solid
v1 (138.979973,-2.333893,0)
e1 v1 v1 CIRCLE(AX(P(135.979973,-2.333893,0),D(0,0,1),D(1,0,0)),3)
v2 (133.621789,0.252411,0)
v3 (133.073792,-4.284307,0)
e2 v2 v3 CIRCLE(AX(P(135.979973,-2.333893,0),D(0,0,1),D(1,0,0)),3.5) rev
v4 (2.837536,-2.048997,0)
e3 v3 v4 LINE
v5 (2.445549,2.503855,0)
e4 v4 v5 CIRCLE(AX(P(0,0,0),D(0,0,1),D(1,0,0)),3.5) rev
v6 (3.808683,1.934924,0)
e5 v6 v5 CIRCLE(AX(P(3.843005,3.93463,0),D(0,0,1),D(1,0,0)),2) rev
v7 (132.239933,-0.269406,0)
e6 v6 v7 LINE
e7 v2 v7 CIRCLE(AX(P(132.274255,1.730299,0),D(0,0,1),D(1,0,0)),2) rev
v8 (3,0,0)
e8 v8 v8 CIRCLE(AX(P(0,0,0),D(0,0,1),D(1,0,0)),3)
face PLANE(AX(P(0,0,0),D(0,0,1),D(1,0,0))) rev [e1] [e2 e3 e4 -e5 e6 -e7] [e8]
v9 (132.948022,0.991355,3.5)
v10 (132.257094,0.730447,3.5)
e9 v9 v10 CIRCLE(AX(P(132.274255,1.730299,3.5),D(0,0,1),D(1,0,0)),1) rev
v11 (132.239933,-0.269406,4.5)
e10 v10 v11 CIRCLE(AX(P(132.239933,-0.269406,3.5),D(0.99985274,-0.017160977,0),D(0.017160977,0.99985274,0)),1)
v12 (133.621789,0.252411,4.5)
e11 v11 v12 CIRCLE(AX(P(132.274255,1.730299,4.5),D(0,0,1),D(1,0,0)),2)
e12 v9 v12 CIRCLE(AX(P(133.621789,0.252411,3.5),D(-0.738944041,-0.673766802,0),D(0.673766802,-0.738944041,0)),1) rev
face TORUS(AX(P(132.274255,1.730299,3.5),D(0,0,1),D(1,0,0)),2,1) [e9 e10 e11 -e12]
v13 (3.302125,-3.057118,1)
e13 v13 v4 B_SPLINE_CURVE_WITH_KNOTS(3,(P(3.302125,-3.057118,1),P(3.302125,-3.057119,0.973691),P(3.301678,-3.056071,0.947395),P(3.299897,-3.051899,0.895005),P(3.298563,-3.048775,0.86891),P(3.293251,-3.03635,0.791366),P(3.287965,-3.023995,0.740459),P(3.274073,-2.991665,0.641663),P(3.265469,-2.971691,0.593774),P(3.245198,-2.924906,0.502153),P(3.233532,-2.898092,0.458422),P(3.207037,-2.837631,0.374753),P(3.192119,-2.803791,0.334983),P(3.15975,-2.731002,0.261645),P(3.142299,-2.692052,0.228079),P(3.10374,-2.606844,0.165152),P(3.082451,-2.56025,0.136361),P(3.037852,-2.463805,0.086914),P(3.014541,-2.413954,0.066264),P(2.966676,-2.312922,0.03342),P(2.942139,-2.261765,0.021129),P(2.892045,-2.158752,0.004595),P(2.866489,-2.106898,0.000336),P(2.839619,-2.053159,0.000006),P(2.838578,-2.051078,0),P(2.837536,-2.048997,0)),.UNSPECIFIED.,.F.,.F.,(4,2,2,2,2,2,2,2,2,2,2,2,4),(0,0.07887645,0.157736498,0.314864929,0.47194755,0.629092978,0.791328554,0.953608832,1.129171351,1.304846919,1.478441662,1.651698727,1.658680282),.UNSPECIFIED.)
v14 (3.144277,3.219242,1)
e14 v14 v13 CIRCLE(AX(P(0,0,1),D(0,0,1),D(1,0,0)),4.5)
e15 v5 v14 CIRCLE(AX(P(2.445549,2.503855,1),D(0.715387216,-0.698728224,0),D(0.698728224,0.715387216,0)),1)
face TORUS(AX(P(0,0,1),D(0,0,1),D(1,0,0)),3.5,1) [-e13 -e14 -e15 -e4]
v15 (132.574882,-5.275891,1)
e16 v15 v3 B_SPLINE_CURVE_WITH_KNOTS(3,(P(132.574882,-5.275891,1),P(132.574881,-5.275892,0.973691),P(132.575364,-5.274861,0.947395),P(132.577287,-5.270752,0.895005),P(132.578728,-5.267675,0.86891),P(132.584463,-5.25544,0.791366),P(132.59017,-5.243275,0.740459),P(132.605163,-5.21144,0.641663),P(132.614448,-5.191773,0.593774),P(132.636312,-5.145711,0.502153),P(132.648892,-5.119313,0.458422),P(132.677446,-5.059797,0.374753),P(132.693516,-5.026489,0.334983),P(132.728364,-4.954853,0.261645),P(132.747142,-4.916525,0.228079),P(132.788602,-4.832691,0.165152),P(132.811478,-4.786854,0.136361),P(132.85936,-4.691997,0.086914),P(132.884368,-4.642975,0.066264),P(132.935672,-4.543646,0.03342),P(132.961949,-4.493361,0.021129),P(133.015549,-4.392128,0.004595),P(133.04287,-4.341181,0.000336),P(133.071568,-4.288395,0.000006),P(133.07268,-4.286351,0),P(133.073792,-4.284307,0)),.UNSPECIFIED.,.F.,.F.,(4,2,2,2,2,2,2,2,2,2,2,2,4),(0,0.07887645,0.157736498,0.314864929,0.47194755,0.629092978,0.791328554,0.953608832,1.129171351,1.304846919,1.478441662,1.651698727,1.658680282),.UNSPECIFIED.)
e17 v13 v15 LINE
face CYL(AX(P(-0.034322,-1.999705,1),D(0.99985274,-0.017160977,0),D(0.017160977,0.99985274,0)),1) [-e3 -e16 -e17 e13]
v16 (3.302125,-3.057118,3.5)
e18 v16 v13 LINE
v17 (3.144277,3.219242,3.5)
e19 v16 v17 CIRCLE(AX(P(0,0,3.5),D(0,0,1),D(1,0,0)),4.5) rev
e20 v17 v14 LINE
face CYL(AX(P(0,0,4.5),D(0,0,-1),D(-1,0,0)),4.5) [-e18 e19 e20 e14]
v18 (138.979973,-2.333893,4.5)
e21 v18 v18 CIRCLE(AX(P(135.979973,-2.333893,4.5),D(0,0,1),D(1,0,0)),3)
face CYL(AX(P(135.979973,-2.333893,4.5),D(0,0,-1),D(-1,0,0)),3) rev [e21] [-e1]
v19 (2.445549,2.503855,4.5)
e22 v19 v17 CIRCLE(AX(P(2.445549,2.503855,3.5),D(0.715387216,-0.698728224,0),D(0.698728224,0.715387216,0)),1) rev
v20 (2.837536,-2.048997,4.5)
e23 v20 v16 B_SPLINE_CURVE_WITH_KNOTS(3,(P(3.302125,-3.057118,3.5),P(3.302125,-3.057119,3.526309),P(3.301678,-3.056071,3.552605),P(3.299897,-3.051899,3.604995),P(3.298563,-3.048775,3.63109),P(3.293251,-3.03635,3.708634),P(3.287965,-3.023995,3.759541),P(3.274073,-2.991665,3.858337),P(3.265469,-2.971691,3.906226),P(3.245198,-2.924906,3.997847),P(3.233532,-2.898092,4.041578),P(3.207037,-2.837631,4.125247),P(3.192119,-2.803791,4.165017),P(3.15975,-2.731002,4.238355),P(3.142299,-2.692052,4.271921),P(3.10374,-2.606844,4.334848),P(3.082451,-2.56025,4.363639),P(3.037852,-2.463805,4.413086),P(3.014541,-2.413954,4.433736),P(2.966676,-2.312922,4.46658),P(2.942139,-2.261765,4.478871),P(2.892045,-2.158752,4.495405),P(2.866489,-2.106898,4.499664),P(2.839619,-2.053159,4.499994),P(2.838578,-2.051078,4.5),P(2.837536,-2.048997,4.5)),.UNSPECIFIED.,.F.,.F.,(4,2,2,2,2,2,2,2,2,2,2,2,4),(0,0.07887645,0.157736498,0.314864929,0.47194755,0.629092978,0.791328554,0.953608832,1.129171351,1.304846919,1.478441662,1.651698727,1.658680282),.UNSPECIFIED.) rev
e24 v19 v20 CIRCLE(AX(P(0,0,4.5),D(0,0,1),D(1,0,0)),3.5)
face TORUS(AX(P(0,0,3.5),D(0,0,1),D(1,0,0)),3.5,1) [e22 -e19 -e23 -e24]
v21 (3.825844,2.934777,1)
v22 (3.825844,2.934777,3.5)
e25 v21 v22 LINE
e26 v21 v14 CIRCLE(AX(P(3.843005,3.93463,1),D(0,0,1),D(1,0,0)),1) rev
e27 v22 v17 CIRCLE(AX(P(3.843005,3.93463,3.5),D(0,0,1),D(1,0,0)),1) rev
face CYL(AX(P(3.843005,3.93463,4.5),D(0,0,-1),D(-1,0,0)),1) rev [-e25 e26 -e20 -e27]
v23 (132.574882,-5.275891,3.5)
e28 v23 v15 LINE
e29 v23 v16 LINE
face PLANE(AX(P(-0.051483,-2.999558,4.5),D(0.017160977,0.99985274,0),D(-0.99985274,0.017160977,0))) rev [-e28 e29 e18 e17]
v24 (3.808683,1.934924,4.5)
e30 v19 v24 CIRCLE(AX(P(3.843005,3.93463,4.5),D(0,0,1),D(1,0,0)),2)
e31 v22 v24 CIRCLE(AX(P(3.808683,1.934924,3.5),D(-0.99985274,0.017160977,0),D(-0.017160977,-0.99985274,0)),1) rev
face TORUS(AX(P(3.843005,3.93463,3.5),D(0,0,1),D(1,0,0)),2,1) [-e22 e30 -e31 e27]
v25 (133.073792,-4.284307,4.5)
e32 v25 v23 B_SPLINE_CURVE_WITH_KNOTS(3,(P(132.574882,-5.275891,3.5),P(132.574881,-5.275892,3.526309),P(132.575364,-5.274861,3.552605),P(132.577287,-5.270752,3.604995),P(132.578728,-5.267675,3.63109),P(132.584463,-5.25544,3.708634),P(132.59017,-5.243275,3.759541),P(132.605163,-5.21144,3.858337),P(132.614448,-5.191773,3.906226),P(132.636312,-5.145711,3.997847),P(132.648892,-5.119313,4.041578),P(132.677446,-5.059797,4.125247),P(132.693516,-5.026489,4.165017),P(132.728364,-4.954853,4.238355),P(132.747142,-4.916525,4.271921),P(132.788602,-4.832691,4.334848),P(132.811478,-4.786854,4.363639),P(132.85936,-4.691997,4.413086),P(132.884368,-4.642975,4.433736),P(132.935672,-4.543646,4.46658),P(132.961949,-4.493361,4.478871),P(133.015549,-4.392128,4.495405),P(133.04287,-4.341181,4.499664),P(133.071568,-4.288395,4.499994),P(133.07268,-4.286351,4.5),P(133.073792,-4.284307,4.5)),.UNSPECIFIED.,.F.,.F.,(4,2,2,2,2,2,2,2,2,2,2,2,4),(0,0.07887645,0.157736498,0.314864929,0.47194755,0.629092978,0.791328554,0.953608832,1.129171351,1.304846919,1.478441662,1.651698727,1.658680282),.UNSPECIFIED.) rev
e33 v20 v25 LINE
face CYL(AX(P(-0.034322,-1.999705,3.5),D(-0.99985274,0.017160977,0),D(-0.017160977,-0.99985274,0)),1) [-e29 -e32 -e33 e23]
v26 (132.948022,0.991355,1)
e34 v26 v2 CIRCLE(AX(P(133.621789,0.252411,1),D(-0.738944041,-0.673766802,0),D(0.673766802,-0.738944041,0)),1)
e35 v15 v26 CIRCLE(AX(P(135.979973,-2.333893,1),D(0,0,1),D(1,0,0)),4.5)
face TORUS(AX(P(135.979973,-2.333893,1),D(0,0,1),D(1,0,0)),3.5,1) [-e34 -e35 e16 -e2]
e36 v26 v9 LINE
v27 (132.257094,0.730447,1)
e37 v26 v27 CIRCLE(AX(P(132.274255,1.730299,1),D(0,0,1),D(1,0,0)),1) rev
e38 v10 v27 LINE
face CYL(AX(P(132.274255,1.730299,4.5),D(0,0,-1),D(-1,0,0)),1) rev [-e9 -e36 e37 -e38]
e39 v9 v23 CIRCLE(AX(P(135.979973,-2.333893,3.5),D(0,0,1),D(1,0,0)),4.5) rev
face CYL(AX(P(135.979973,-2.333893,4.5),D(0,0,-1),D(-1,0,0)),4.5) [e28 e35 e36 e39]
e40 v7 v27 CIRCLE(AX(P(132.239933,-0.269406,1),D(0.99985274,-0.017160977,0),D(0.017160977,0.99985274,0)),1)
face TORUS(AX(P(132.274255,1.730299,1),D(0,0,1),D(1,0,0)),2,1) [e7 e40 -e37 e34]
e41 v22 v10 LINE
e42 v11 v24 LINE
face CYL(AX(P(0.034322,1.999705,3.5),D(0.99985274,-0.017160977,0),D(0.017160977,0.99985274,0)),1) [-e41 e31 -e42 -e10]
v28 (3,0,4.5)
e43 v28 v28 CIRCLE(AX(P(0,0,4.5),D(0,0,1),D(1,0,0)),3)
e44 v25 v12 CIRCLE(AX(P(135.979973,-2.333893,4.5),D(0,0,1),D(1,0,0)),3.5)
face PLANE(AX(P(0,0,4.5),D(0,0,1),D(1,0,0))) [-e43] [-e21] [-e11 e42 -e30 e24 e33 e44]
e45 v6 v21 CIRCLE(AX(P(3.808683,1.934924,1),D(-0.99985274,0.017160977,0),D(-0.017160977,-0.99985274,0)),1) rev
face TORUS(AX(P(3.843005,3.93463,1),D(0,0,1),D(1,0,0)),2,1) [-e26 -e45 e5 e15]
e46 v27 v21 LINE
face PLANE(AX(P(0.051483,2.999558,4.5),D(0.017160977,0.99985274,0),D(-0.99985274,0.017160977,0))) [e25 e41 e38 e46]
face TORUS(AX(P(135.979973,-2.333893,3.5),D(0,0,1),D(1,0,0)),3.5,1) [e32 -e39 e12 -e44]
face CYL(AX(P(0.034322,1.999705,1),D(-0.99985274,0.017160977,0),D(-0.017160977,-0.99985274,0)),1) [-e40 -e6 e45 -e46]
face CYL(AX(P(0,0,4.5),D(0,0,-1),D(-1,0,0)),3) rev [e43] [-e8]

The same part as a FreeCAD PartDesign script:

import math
import FreeCAD as App
import Part
import Sketcher

V = App.Vector


def edges_at(feature, points):
    """Names of the edges that pass closest to the given points."""
    edges = feature.Shape.Edges
    near = lambda p: min(range(len(edges)), key=lambda i: edges[i].distToShape(Part.Vertex(*p))[0])
    return sorted({f"Edge{near(p) + 1}" for p in points})

doc = App.newDocument("Part")
body = doc.addObject("PartDesign::Body", "Body")

# Sketch on XY plane
sketch1 = body.newObject("Sketcher::SketchObject", "Sketch")
sketch1.AttachmentSupport = (doc.getObject("XY_Plane"), [""])
sketch1.MapMode = "FlatFace"
sketch1.addGeometry(Part.LineSegment(V(132.7, 0.7, 0), V(3.4, 2.9, 0)), False)
sketch1.addGeometry(Part.ArcOfCircle(Part.Circle(V(0, 0, 0), V(0, 0, 1), 4.5), math.radians(41), math.radians(317)), False)
sketch1.addGeometry(Part.LineSegment(V(3.3, -3.1, 0), V(132.6, -5.3, 0)), False)
sketch1.addGeometry(Part.ArcOfCircle(Part.Circle(V(136, -2.3, 0), V(0, 0, 1), 4.5), math.radians(-139), math.radians(137)), False)
sketch1.addGeometry(Part.Circle(V(136, -2.3, 0), V(0, 0, 1), 3), False)
sketch1.addGeometry(Part.Circle(V(0, 0, 0), V(0, 0, 1), 3), False)
sketch1.addConstraint(Sketcher.Constraint("Coincident", 0, 2, 1, 1))
sketch1.addConstraint(Sketcher.Constraint("Coincident", 1, 2, 2, 1))
sketch1.addConstraint(Sketcher.Constraint("Coincident", 2, 2, 3, 1))
sketch1.addConstraint(Sketcher.Constraint("Coincident", 3, 2, 0, 1))
sketch1.addConstraint(Sketcher.Constraint("Coincident", 1, 3, -1, 1))
sketch1.addConstraint(Sketcher.Constraint("Coincident", 5, 3, -1, 1))
sketch1.addConstraint(Sketcher.Constraint("Coincident", 4, 3, 3, 3))
sketch1.addConstraint(Sketcher.Constraint("Equal", 1, 3))
sketch1.addConstraint(Sketcher.Constraint("Equal", 4, 5))
sketch1.addConstraint(Sketcher.Constraint("Parallel", 0, 2))
sketch1.addConstraint(Sketcher.Constraint("Equal", 0, 2))
sketch1.addConstraint(Sketcher.Constraint("Diameter", 4, 6.0))
sketch1.addConstraint(Sketcher.Constraint("Radius", 1, 4.5))
sketch1.addConstraint(Sketcher.Constraint("DistanceY", -1, 1, 0, 2, 2.941999))
sketch1.addConstraint(Sketcher.Constraint("DistanceX", -1, 1, 2, 2, 132.574882))
sketch1.addConstraint(Sketcher.Constraint("DistanceY", 2, 2, -1, 1, 5.275891))
sketch1.addConstraint(Sketcher.Constraint("Distance", 0, 129.291796))
pad1 = body.newObject("PartDesign::Pad", "Pad")
pad1.Profile = sketch1
pad1.Length = 4.5
doc.recompute()

fillet = body.newObject("PartDesign::Fillet", "Fillet")
fillet.Base = (pad1, edges_at(pad1, [
    (3.405, 2.942, 2.25),
    (132.678, 0.723, 2.25),
    (67.939, -4.167, 4.5),
    (140.479, -2.411, 4.5),
    (68.041, 1.833, 4.5),
    (-4.499, 0.077, 4.5),
    (-4.499, 0.077, 0),
    (68.041, 1.833, 0),
    (140.479, -2.411, 0),
    (67.939, -4.167, 0),
]))
fillet.Radius = 1

doc.recompute()
